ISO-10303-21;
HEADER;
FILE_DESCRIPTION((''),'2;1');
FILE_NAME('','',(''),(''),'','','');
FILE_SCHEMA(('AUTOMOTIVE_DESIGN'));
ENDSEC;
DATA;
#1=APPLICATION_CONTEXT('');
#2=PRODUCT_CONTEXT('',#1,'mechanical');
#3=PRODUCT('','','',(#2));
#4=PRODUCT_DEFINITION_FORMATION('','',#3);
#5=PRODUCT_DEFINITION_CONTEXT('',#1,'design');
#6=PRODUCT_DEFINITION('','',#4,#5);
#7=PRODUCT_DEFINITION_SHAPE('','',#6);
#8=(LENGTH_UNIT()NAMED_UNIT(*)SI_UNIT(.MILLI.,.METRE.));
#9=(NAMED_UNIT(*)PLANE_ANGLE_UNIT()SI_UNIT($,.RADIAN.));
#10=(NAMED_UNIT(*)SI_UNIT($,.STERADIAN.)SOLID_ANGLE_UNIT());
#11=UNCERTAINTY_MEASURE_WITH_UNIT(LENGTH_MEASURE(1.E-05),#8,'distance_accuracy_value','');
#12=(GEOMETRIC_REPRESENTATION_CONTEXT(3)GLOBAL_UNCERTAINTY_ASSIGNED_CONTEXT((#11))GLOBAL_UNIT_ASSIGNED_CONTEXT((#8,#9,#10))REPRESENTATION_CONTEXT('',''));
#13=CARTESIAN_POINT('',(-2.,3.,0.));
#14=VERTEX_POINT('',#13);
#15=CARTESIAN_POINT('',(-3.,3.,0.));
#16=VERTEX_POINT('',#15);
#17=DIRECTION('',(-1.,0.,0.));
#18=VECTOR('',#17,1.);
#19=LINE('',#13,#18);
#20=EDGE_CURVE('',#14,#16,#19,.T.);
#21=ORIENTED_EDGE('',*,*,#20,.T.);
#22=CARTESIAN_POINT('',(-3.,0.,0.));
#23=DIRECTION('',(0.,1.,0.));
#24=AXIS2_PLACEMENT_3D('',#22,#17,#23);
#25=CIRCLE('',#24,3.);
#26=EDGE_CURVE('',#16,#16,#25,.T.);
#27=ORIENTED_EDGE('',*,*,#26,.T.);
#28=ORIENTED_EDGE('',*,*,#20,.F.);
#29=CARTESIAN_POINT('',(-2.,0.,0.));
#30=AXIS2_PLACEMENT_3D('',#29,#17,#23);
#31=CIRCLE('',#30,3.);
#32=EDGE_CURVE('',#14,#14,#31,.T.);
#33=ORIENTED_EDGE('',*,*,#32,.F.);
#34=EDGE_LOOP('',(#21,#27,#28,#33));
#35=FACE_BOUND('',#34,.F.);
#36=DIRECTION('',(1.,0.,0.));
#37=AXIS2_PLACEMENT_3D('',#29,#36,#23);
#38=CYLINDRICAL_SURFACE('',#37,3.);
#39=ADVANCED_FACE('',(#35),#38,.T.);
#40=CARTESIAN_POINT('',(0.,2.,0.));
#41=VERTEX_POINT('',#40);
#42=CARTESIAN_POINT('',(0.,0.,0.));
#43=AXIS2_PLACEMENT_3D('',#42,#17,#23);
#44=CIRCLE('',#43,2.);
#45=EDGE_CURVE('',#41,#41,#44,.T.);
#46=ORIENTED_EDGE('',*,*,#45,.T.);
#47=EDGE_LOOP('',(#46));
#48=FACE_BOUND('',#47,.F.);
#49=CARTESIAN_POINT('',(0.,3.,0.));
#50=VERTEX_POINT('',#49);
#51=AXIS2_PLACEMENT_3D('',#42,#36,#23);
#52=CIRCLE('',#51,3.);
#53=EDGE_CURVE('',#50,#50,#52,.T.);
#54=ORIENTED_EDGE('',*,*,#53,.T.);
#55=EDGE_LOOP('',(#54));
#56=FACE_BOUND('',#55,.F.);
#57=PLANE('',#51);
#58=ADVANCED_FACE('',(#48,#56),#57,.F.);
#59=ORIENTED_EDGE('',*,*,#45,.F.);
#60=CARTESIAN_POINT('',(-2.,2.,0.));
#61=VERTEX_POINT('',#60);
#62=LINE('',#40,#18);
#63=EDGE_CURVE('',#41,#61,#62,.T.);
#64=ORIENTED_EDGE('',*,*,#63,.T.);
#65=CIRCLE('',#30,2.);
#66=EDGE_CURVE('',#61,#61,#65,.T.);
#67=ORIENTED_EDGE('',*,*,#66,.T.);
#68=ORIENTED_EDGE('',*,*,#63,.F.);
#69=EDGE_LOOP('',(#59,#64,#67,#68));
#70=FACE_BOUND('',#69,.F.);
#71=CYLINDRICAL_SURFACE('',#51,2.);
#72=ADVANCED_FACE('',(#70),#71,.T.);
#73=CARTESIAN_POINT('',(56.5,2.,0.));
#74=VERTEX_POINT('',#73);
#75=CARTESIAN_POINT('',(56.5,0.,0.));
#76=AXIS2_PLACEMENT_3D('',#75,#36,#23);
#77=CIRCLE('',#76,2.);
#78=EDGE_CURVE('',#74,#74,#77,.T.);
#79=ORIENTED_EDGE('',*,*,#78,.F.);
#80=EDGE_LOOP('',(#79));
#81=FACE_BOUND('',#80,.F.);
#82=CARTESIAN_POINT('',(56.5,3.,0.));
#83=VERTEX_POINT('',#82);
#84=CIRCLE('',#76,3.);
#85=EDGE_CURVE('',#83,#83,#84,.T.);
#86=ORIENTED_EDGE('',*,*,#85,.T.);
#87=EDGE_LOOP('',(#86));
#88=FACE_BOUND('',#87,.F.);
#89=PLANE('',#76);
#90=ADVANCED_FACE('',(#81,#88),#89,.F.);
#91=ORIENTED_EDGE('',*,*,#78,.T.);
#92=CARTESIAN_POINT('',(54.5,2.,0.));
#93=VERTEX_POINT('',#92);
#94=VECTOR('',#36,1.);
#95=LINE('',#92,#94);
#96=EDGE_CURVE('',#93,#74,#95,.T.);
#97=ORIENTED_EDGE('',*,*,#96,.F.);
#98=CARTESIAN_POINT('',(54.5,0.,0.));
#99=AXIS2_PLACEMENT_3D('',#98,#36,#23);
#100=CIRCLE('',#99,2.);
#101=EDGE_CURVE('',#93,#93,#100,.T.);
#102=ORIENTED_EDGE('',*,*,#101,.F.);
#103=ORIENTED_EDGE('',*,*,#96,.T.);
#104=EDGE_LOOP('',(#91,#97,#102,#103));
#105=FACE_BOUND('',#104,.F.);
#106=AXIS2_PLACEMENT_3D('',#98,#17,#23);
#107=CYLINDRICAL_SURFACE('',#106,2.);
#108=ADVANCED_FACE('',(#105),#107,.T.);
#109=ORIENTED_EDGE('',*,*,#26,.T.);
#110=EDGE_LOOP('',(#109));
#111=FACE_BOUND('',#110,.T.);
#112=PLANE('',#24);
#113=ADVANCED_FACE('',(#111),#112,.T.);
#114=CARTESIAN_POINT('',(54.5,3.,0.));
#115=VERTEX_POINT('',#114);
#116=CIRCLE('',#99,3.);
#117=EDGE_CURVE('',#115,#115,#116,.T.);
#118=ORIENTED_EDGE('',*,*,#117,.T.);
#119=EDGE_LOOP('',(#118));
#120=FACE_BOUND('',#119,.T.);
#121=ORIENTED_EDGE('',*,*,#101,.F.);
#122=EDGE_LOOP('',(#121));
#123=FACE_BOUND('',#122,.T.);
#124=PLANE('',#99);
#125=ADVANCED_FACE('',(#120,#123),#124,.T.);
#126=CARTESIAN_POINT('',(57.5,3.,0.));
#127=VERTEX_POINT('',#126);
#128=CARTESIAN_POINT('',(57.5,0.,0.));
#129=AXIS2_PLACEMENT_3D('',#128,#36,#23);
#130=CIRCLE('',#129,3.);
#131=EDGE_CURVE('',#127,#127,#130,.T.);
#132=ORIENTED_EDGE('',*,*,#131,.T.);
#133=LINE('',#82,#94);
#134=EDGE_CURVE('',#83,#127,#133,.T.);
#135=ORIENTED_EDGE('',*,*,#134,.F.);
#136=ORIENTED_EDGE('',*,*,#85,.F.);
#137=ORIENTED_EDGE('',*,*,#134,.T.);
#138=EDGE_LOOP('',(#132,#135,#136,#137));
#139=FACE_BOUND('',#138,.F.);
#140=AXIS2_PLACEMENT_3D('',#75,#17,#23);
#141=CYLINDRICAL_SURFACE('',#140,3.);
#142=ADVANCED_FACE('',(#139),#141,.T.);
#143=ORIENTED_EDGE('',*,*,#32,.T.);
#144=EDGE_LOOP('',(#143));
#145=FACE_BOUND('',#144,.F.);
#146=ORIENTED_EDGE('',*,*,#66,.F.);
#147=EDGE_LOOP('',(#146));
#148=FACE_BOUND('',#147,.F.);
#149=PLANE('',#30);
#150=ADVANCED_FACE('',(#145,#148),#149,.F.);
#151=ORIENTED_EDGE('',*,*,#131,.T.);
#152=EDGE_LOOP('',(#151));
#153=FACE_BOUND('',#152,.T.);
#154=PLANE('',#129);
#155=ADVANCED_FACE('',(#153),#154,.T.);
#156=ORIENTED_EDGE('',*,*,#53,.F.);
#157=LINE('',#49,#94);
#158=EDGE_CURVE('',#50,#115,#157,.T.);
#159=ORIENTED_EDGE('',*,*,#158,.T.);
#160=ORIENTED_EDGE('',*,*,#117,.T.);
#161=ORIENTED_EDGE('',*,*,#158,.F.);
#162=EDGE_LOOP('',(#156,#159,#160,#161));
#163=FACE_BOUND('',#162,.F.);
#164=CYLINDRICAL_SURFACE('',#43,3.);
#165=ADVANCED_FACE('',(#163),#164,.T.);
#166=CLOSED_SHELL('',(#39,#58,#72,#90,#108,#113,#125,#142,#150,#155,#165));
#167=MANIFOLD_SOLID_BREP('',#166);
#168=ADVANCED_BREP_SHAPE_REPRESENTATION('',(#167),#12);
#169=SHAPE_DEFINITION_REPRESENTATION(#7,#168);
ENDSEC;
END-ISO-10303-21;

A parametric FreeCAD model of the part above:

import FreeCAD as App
import Part
import Sketcher

V = App.Vector
Q = App.Units.Quantity

doc = App.newDocument("Part")
body = doc.addObject("PartDesign::Body", "Body")

sketch1 = body.newObject("Sketcher::SketchObject", "Sketch")
sketch1.AttachmentSupport = (doc.getObject("YZ_Plane"), [""])
sketch1.MapMode = "FlatFace"
sketch1.addGeometry(Part.Circle(V(0, 0, 0), V(0, 0, 1), 3), False)
sketch1.addConstraint([
    Sketcher.Constraint("Coincident", 0, 3, -1, 1),
    Sketcher.Constraint("Diameter", 0, Q("6 mm")),
])
pad1 = body.newObject("PartDesign::Pad", "Pad")
pad1.Profile = sketch1
pad1.Length = 54.5

sketch2 = body.newObject("Sketcher::SketchObject", "Sketch001")
sketch2.AttachmentSupport = (doc.getObject("YZ_Plane"), [""])
sketch2.MapMode = "FlatFace"
sketch2.AttachmentOffset = App.Placement(V(0, 0, 54.5), App.Rotation())
sketch2.addGeometry(Part.Circle(V(0, 0, 0), V(0, 0, 1), 2), False)
sketch2.addConstraint([
    Sketcher.Constraint("Coincident", 0, 3, -1, 1),
    Sketcher.Constraint("Diameter", 0, Q("4 mm")),
])
pad2 = body.newObject("PartDesign::Pad", "Pad001")
pad2.Profile = sketch2
pad2.Length = 2

sketch3 = body.newObject("Sketcher::SketchObject", "Sketch002")
sketch3.AttachmentSupport = (doc.getObject("YZ_Plane"), [""])
sketch3.MapMode = "FlatFace"
sketch3.AttachmentOffset = App.Placement(V(0, 0, 56.5), App.Rotation())
sketch3.addGeometry(Part.Circle(V(0, 0, 0), V(0, 0, 1), 3), False)
sketch3.addConstraint([
    Sketcher.Constraint("Coincident", 0, 3, -1, 1),
    Sketcher.Constraint("Diameter", 0, Q("6 mm")),
])
pad3 = body.newObject("PartDesign::Pad", "Pad002")
pad3.Profile = sketch3
pad3.Length = 1

sketch4 = body.newObject("Sketcher::SketchObject", "Sketch003")
sketch4.AttachmentSupport = (doc.getObject("YZ_Plane"), [""])
sketch4.MapMode = "FlatFace"
sketch4.addGeometry(Part.Circle(V(0, 0, 0), V(0, 0, 1), 2), False)
sketch4.addConstraint([
    Sketcher.Constraint("Coincident", 0, 3, -1, 1),
    Sketcher.Constraint("Diameter", 0, Q("4 mm")),
])
pad4 = body.newObject("PartDesign::Pad", "Pad003")
pad4.Profile = sketch4
pad4.Length = 2
pad4.Reversed = True

sketch5 = body.newObject("Sketcher::SketchObject", "Sketch004")
sketch5.AttachmentSupport = (doc.getObject("YZ_Plane"), [""])
sketch5.MapMode = "FlatFace"
sketch5.AttachmentOffset = App.Placement(V(0, 0, -2), App.Rotation())
sketch5.addGeometry(Part.Circle(V(0, 0, 0), V(0, 0, 1), 3), False)
sketch5.addConstraint([
    Sketcher.Constraint("Coincident", 0, 3, -1, 1),
    Sketcher.Constraint("Diameter", 0, Q("6 mm")),
])
pad5 = body.newObject("PartDesign::Pad", "Pad004")
pad5.Profile = sketch5
pad5.Length = 1
pad5.Reversed = True

doc.recompute()
